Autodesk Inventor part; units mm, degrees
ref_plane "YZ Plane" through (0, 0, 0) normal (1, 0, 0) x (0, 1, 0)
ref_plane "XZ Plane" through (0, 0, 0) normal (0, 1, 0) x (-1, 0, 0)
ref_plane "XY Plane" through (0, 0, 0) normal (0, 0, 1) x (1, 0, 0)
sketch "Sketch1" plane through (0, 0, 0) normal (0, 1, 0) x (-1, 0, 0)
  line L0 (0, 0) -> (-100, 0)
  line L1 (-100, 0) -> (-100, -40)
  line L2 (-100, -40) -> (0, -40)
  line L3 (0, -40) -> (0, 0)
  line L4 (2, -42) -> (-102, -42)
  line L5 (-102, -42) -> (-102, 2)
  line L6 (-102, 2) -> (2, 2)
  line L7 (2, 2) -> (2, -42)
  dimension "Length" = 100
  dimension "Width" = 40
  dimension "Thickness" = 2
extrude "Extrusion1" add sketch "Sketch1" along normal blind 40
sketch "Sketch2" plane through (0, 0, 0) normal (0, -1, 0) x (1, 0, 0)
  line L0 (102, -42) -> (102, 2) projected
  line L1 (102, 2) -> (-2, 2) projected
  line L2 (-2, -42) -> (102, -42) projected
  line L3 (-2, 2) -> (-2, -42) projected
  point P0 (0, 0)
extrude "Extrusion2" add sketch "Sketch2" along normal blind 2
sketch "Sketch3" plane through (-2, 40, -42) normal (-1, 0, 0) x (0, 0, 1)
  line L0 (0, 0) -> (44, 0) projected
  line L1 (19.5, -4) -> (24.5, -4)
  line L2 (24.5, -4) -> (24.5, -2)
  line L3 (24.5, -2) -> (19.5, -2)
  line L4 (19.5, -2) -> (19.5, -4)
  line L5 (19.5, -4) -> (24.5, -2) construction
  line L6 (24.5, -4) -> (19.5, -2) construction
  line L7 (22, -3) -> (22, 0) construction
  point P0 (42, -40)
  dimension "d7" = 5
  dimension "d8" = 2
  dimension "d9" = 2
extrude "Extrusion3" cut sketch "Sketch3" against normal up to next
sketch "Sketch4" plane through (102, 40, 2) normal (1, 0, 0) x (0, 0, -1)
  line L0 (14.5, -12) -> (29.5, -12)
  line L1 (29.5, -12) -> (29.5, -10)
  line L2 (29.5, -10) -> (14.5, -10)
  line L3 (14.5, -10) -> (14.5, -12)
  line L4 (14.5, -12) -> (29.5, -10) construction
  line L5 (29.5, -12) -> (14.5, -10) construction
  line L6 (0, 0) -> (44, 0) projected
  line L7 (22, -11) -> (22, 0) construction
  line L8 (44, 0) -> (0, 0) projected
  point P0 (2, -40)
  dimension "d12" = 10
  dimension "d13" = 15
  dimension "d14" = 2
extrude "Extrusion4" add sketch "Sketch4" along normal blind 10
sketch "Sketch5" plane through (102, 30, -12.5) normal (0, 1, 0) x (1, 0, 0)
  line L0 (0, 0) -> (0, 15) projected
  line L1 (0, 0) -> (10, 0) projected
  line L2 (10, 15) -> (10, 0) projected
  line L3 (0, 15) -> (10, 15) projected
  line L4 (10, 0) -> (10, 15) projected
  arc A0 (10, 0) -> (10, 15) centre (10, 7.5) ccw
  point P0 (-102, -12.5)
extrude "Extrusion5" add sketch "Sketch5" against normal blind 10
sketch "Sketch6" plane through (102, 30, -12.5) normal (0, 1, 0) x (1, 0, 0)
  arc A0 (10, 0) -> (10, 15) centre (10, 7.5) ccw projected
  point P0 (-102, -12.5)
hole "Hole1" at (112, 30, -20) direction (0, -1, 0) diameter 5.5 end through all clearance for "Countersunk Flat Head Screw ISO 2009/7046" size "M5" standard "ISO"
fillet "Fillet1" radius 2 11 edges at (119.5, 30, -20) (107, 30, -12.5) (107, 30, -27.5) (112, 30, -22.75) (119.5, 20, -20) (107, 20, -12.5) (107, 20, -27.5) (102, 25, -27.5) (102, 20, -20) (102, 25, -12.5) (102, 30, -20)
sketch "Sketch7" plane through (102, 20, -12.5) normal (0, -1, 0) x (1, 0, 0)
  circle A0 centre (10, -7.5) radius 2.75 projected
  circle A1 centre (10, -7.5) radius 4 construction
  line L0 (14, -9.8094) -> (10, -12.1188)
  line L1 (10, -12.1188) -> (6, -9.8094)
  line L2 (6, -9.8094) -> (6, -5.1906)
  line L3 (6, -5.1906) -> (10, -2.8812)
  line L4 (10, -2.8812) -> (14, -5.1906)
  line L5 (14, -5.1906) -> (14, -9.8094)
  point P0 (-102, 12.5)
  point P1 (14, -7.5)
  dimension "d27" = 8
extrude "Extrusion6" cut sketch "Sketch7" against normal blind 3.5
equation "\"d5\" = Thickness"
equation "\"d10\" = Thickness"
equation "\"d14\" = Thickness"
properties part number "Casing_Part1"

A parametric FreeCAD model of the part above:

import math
import FreeCAD as App
import Part
import Sketcher
from FreeCAD import Vector
Q = App.Units.Quantity


def edges_at(feature, points):
    """Names of the edges that pass closest to the given points."""
    edges = feature.Shape.Edges
    near = lambda p: min(range(len(edges)), key=lambda i: edges[i].distToShape(Part.Vertex(*p))[0])
    return sorted({f"Edge{near(p) + 1}" for p in points})

doc = App.newDocument("Part")
body = doc.addObject("PartDesign::Body", "Body")

# Sketch on XZ plane
sketch1 = doc.addObject("Sketcher::SketchObject", "Sketch")
body.addObject(sketch1)
sketch1.AttachmentSupport = (doc.XZ_Plane, [""])
sketch1.MapMode = "FlatFace"
sketch1.addGeometry([
    Part.LineSegment(Vector(102, -42, 0), Vector(-2, -42, 0)),  # 0
    Part.LineSegment(Vector(-2, -42, 0), Vector(-2, 2, 0)),  # 1
    Part.LineSegment(Vector(-2, 2, 0), Vector(102, 2, 0)),  # 2
    Part.LineSegment(Vector(102, 2, 0), Vector(102, -42, 0)),  # 3
    Part.LineSegment(Vector(100, 0, 0), Vector(0, 0, 0)),  # 4
    Part.LineSegment(Vector(0, 0, 0), Vector(0, -40, 0)),  # 5
    Part.LineSegment(Vector(0, -40, 0), Vector(100, -40, 0)),  # 6
    Part.LineSegment(Vector(100, -40, 0), Vector(100, 0, 0)),  # 7
], False)
sketch1.addConstraint([
    Sketcher.Constraint("Coincident", 0, 2, 1, 1),
    Sketcher.Constraint("Coincident", 1, 2, 2, 1),
    Sketcher.Constraint("Coincident", 2, 2, 3, 1),
    Sketcher.Constraint("Coincident", 3, 2, 0, 1),
    Sketcher.Constraint("Coincident", 4, 2, 5, 1),
    Sketcher.Constraint("Coincident", 5, 2, 6, 1),
    Sketcher.Constraint("Coincident", 6, 2, 7, 1),
    Sketcher.Constraint("Coincident", 7, 2, 4, 1),
    Sketcher.Constraint("Horizontal", 0),
    Sketcher.Constraint("Vertical", 1),
    Sketcher.Constraint("Horizontal", 2),
    Sketcher.Constraint("Vertical", 3),
    Sketcher.Constraint("Horizontal", 4),
    Sketcher.Constraint("Vertical", 5),
    Sketcher.Constraint("Horizontal", 6),
    Sketcher.Constraint("Vertical", 7),
    Sketcher.Constraint("Coincident", 4, 2, -1, 1),
    Sketcher.Constraint("DistanceX", 4, 2, 4, 1, Q("100 mm")),
    Sketcher.Constraint("DistanceY", 5, 2, 5, 1, Q("40 mm")),
    Sketcher.Constraint("DistanceX", 0, 2, -1, 1, Q("2 mm")),
    Sketcher.Constraint("DistanceY", -1, 1, 1, 2, Q("2 mm")),
    Sketcher.Constraint("DistanceY", 0, 2, 5, 2, Q("2 mm")),
    Sketcher.Constraint("DistanceX", 6, 2, 3, 2, Q("2 mm")),
])
pad1 = doc.addObject("PartDesign::Pad", "Pad")
body.addObject(pad1)
pad1.Profile = sketch1
pad1.Length = 40
pad1.Reversed = True

# Sketch on XZ plane
sketch2 = doc.addObject("Sketcher::SketchObject", "Sketch001")
body.addObject(sketch2)
sketch2.AttachmentSupport = (doc.XZ_Plane, [""])
sketch2.MapMode = "FlatFace"
sketch2.addGeometry([
    Part.LineSegment(Vector(-2, -42, 0), Vector(102, -42, 0)),
    Part.LineSegment(Vector(102, -42, 0), Vector(102, 2, 0)),
    Part.LineSegment(Vector(102, 2, 0), Vector(-2, 2, 0)),
    Part.LineSegment(Vector(-2, 2, 0), Vector(-2, -42, 0)),
], False)
sketch2.addConstraint([
    Sketcher.Constraint("Coincident", 0, 2, 1, 1),
    Sketcher.Constraint("Coincident", 1, 2, 2, 1),
    Sketcher.Constraint("Coincident", 2, 2, 3, 1),
    Sketcher.Constraint("Coincident", 3, 2, 0, 1),
    Sketcher.Constraint("Horizontal", 0),
    Sketcher.Constraint("Vertical", 1),
    Sketcher.Constraint("Horizontal", 2),
    Sketcher.Constraint("Vertical", 3),
    Sketcher.Constraint("DistanceX", 0, 1, 0, 2, Q("104 mm")),
    Sketcher.Constraint("DistanceY", 1, 1, 1, 2, Q("44 mm")),
    Sketcher.Constraint("DistanceX", -1, 1, 0, 2, Q("102 mm")),
    Sketcher.Constraint("DistanceY", 0, 2, -1, 1, Q("42 mm")),
])
pad2 = doc.addObject("PartDesign::Pad", "Pad001")
body.addObject(pad2)
pad2.Profile = sketch2
pad2.Length = 2

# Sketch on YZ plane
sketch3 = doc.addObject("Sketcher::SketchObject", "Sketch002")
body.addObject(sketch3)
sketch3.AttachmentSupport = (doc.YZ_Plane, [""])
sketch3.MapMode = "FlatFace"
sketch3.AttachmentOffset = App.Placement(Vector(0, 0, -2), App.Rotation())
sketch3.addGeometry([
    Part.LineSegment(Vector(38, -22.5, 0), Vector(36, -22.5, 0)),
    Part.LineSegment(Vector(36, -22.5, 0), Vector(36, -17.5, 0)),
    Part.LineSegment(Vector(36, -17.5, 0), Vector(38, -17.5, 0)),
    Part.LineSegment(Vector(38, -17.5, 0), Vector(38, -22.5, 0)),
], False)
sketch3.addConstraint([
    Sketcher.Constraint("Coincident", 0, 2, 1, 1),
    Sketcher.Constraint("Coincident", 1, 2, 2, 1),
    Sketcher.Constraint("Coincident", 2, 2, 3, 1),
    Sketcher.Constraint("Coincident", 3, 2, 0, 1),
    Sketcher.Constraint("Horizontal", 0),
    Sketcher.Constraint("Vertical", 1),
    Sketcher.Constraint("Horizontal", 2),
    Sketcher.Constraint("Vertical", 3),
    Sketcher.Constraint("DistanceX", 0, 2, 0, 1, Q("2 mm")),
    Sketcher.Constraint("DistanceY", 1, 1, 1, 2, Q("5 mm")),
    Sketcher.Constraint("DistanceX", -1, 1, 0, 2, Q("36 mm")),
    Sketcher.Constraint("DistanceY", 0, 2, -1, 1, Q("22.5 mm")),
])
pocket1 = doc.addObject("PartDesign::Pocket", "Pocket")
body.addObject(pocket1)
pocket1.Profile = sketch3
pocket1.Type = "UpToFirst"
pocket1.Reversed = True

# Sketch on YZ plane
sketch4 = doc.addObject("Sketcher::SketchObject", "Sketch003")
body.addObject(sketch4)
sketch4.AttachmentSupport = (doc.YZ_Plane, [""])
sketch4.MapMode = "FlatFace"
sketch4.AttachmentOffset = App.Placement(Vector(0, 0, 102), App.Rotation())
sketch4.addGeometry([
    Part.LineSegment(Vector(30, -12.5, 0), Vector(28, -12.5, 0)),
    Part.LineSegment(Vector(28, -12.5, 0), Vector(28, -27.5, 0)),
    Part.LineSegment(Vector(28, -27.5, 0), Vector(30, -27.5, 0)),
    Part.LineSegment(Vector(30, -27.5, 0), Vector(30, -12.5, 0)),
], False)
sketch4.addConstraint([
    Sketcher.Constraint("Coincident", 0, 2, 1, 1),
    Sketcher.Constraint("Coincident", 1, 2, 2, 1),
    Sketcher.Constraint("Coincident", 2, 2, 3, 1),
    Sketcher.Constraint("Coincident", 3, 2, 0, 1),
    Sketcher.Constraint("Horizontal", 0),
    Sketcher.Constraint("Vertical", 1),
    Sketcher.Constraint("Horizontal", 2),
    Sketcher.Constraint("Vertical", 3),
    Sketcher.Constraint("DistanceX", 0, 2, 0, 1, Q("2 mm")),
    Sketcher.Constraint("DistanceY", 1, 2, 1, 1, Q("15 mm")),
    Sketcher.Constraint("DistanceX", -1, 1, 0, 2, Q("28 mm")),
    Sketcher.Constraint("DistanceY", 0, 2, -1, 1, Q("12.5 mm")),
])
pad3 = doc.addObject("PartDesign::Pad", "Pad002")
body.addObject(pad3)
pad3.Profile = sketch4
pad3.Length = 10

# Sketch on XZ plane
sketch5 = doc.addObject("Sketcher::SketchObject", "Sketch004")
body.addObject(sketch5)
sketch5.AttachmentSupport = (doc.XZ_Plane, [""])
sketch5.MapMode = "FlatFace"
sketch5.AttachmentOffset = App.Placement(Vector(0, 0, -30), App.Rotation())
sketch5.addGeometry([
    Part.LineSegment(Vector(102, -28, 0), Vector(102, -12, 0)),
    Part.LineSegment(Vector(102, -12, 0), Vector(112, -12, 0)),
    Part.ArcOfCircle(Part.Circle(Vector(112, -20, 0), Vector(0, 0, 1), 8), math.radians(-90), math.radians(90)),
    Part.LineSegment(Vector(112, -28, 0), Vector(102, -28, 0)),
], False)
sketch5.addConstraint([
    Sketcher.Constraint("Coincident", 0, 2, 1, 1),
    Sketcher.Constraint("Tangent", 1, 2, 2, 2),
    Sketcher.Constraint("Tangent", 2, 1, 3, 1),
    Sketcher.Constraint("Coincident", 3, 2, 0, 1),
    Sketcher.Constraint("Vertical", 0),
    Sketcher.Constraint("Horizontal", 1),
    Sketcher.Constraint("Horizontal", 3),
    Sketcher.Constraint("Radius", 2, Q("7.5 mm")),
    Sketcher.Constraint("DistanceX", 1, 1, 1, 2, Q("10 mm")),
    Sketcher.Constraint("DistanceX", -1, 1, 2, 3, Q("112 mm")),
    Sketcher.Constraint("DistanceY", 2, 3, -1, 1, Q("20 mm")),
])
pad4 = doc.addObject("PartDesign::Pad", "Pad003")
body.addObject(pad4)
pad4.Profile = sketch5
pad4.Length = 10

# Sketch on XZ plane
sketch6 = doc.addObject("Sketcher::SketchObject", "Sketch005")
body.addObject(sketch6)
sketch6.AttachmentSupport = (doc.XZ_Plane, [""])
sketch6.MapMode = "FlatFace"
sketch6.AttachmentOffset = App.Placement(Vector(0, 0, -30), App.Rotation())
sketch6.addGeometry(Part.Circle(Vector(112, -20, 0), Vector(0, 0, 1), 2.8), False)
sketch6.addConstraint([
    Sketcher.Constraint("Diameter", 0, Q("5.5 mm")),
    Sketcher.Constraint("DistanceX", -1, 1, 0, 3, Q("112 mm")),
    Sketcher.Constraint("DistanceY", 0, 3, -1, 1, Q("20 mm")),
])
doc.recompute()
hole = doc.addObject("PartDesign::Hole", "Hole")
body.addObject(hole)
hole.Profile = sketch6
hole.ThreadType = "None"
hole.Diameter = 5.5
hole.DepthType = "ThroughAll"
hole.Reversed = True
doc.recompute()

fillet = doc.addObject("PartDesign::Fillet", "Fillet")
body.addObject(fillet)
fillet.Base = (hole, edges_at(hole, [
    (119.5, 30, -20),
    (107, 30, -12.5),
    (107, 30, -27.5),
    (112, 30, -22.75),
    (119.5, 20, -20),
    (107, 20, -12.5),
    (107, 20, -27.5),
    (102, 25, -27.5),
    (102, 20, -20),
    (102, 25, -12.5),
    (102, 30, -20),
]))
fillet.Radius = 2

# Sketch on XZ plane
sketch7 = doc.addObject("Sketcher::SketchObject", "Sketch006")
body.addObject(sketch7)
sketch7.AttachmentSupport = (doc.XZ_Plane, [""])
sketch7.MapMode = "FlatFace"
sketch7.AttachmentOffset = App.Placement(Vector(0, 0, -20), App.Rotation())
sketch7.addGeometry([
    Part.LineSegment(Vector(112, -24.6, 0), Vector(116, -22.3, 0)),  # 0
    Part.LineSegment(Vector(116, -22.3, 0), Vector(116, -17.7, 0)),  # 1
    Part.LineSegment(Vector(116, -17.7, 0), Vector(112, -15.4, 0)),  # 2
    Part.LineSegment(Vector(112, -15.4, 0), Vector(108, -17.7, 0)),  # 3
    Part.LineSegment(Vector(108, -17.7, 0), Vector(108, -22.3, 0)),  # 4
    Part.LineSegment(Vector(108, -22.3, 0), Vector(112, -24.6, 0)),  # 5
    Part.Circle(Vector(112, -20, 0), Vector(0, 0, 1), 2.8),  # 6
], False)
sketch7.addConstraint([
    Sketcher.Constraint("Coincident", 0, 2, 1, 1),
    Sketcher.Constraint("Coincident", 1, 2, 2, 1),
    Sketcher.Constraint("Coincident", 2, 2, 3, 1),
    Sketcher.Constraint("Coincident", 3, 2, 4, 1),
    Sketcher.Constraint("Coincident", 4, 2, 5, 1),
    Sketcher.Constraint("Coincident", 5, 2, 0, 1),
    Sketcher.Constraint("Vertical", 1),
    Sketcher.Constraint("Vertical", 4),
    Sketcher.Constraint("Parallel", 0, 3),
    Sketcher.Constraint("Parallel", 2, 5),
    Sketcher.Constraint("Horizontal", 1, 2, 3, 2),
    Sketcher.Constraint("Horizontal", 0, 2, 4, 2),
    Sketcher.Constraint("Vertical", 6, 3, 2, 2),
    Sketcher.Constraint("Vertical", 2, 2, 5, 2),
    Sketcher.Constraint("DistanceX", 3, 2, 1, 2, Q("8 mm")),
    Sketcher.Constraint("Diameter", 6, Q("5.5 mm")),
    Sketcher.Constraint("Angle", 0, Q("30 deg")),
    Sketcher.Constraint("DistanceX", -1, 1, 6, 3, Q("112 mm")),
    Sketcher.Constraint("DistanceY", 6, 3, -1, 1, Q("20 mm")),
    Sketcher.Constraint("DistanceY", 1, 1, 1, 2, Q("4.6188 mm")),
    Sketcher.Constraint("DistanceY", 0, 2, -1, 1, Q("22.3094 mm")),
])
pocket2 = doc.addObject("PartDesign::Pocket", "Pocket001")
body.addObject(pocket2)
pocket2.Profile = sketch7
pocket2.Length = 3.5

doc.recompute()
